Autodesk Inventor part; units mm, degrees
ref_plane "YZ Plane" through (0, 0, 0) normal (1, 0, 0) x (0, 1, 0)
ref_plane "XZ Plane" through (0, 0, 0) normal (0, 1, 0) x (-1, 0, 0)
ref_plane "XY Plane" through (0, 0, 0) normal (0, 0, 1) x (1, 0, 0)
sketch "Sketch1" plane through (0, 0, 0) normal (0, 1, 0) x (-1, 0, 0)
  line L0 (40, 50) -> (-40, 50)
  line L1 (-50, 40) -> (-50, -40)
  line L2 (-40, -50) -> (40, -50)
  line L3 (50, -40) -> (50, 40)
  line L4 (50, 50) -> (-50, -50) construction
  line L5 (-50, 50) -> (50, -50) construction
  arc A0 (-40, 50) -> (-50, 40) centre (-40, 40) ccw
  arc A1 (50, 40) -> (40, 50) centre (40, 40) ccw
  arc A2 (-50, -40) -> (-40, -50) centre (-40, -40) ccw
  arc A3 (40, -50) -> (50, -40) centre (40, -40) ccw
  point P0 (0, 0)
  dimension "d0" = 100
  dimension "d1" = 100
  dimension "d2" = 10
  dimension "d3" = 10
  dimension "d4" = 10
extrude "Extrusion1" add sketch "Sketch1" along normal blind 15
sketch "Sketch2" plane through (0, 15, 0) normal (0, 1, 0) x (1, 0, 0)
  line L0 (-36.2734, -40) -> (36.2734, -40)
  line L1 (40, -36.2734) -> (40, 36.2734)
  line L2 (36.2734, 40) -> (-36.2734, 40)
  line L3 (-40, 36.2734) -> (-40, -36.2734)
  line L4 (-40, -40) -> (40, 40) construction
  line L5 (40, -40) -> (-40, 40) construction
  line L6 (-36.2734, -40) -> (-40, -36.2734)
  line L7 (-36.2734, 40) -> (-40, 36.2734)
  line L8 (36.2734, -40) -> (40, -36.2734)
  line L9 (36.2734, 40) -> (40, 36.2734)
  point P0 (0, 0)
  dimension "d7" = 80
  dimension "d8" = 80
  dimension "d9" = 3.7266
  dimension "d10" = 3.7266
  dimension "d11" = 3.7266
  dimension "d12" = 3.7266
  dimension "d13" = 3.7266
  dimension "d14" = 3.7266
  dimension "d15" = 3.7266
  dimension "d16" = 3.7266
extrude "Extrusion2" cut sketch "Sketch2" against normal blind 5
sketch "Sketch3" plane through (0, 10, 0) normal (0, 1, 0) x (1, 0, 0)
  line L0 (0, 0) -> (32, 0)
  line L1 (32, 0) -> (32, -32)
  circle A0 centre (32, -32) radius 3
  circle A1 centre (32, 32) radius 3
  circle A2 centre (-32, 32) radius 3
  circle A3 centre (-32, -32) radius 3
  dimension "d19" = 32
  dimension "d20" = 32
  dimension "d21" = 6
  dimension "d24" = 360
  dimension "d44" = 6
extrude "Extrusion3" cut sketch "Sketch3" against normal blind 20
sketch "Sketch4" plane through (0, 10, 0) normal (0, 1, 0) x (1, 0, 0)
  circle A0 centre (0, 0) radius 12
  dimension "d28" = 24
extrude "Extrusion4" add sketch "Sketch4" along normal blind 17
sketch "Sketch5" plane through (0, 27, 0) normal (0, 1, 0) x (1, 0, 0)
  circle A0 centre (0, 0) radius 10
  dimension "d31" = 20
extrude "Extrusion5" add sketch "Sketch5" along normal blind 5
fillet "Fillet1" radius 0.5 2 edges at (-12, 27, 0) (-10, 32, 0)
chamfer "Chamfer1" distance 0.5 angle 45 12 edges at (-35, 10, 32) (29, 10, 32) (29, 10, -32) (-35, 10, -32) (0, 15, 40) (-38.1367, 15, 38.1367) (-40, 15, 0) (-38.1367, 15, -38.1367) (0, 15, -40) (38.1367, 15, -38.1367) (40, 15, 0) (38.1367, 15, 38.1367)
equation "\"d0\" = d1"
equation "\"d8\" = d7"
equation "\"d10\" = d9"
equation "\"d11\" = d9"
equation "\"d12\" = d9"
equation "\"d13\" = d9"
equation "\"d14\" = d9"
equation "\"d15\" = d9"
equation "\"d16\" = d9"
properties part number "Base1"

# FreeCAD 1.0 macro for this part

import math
import FreeCAD as App
import Part
import Sketcher

V = App.Vector
Q = App.Units.Quantity


def edges_at(feature, points):
    """Names of the edges that pass closest to the given points."""
    edges = feature.Shape.Edges
    near = lambda p: min(range(len(edges)), key=lambda i: edges[i].distToShape(Part.Vertex(*p))[0])
    return sorted({f"Edge{near(p) + 1}" for p in points})

doc = App.newDocument("Part")
params = doc.addObject("Spreadsheet::Sheet", "Params")
for row, (alias, value) in enumerate([
    ("sketch1_radius", "10 mm"),
    ("sketch1_width", "80 mm"),
    ("pad1_length", "15 mm"),
    ("pocket1_length", "5 mm"),
    ("sketch3_diameter", "6 mm"),
    ("pocket2_length", "20 mm"),
    ("sketch4_diameter", "24 mm"),
    ("pad2_length", "17 mm"),
    ("sketch5_diameter", "20 mm"),
    ("pad3_length", "5 mm"),
    ("fillet_radius", "0.5 mm"),
    ("chamfer_size", "0.5 mm"),
], start=1):
    params.set(f"A{row}", alias)
    params.set(f"B{row}", "=" + value)
    params.setAlias(f"B{row}", alias)

body = doc.addObject("PartDesign::Body", "Body")

sketch1 = body.newObject("Sketcher::SketchObject", "Sketch")
sketch1.AttachmentSupport = (doc.getObject("XZ_Plane"), [""])
sketch1.MapMode = "FlatFace"
sketch1.addGeometry([
    Part.ArcOfCircle(Part.Circle(V(-40, 40, 0), V(0, 0, 1), 10), math.radians(90), math.radians(180)),
    Part.LineSegment(V(-40, 50, 0), V(40, 50, 0)),
    Part.ArcOfCircle(Part.Circle(V(40, 40, 0), V(0, 0, 1), 10), math.radians(0), math.radians(90)),
    Part.LineSegment(V(50, 40, 0), V(50, -40, 0)),
    Part.ArcOfCircle(Part.Circle(V(40, -40, 0), V(0, 0, 1), 10), math.radians(-90), math.radians(0)),
    Part.LineSegment(V(40, -50, 0), V(-40, -50, 0)),
    Part.ArcOfCircle(Part.Circle(V(-40, -40, 0), V(0, 0, 1), 10), math.radians(180), math.radians(270)),
    Part.LineSegment(V(-50, -40, 0), V(-50, 40, 0)),
], False)
sketch1.addConstraint([
    Sketcher.Constraint("Tangent", 0, 1, 1, 1),
    Sketcher.Constraint("Tangent", 1, 2, 2, 2),
    Sketcher.Constraint("Tangent", 2, 1, 3, 1),
    Sketcher.Constraint("Tangent", 3, 2, 4, 2),
    Sketcher.Constraint("Tangent", 4, 1, 5, 1),
    Sketcher.Constraint("Tangent", 5, 2, 6, 2),
    Sketcher.Constraint("Tangent", 6, 1, 7, 1),
    Sketcher.Constraint("Tangent", 7, 2, 0, 2),
    Sketcher.Constraint("Horizontal", 1),
    Sketcher.Constraint("Vertical", 3),
    Sketcher.Constraint("Horizontal", 5),
    Sketcher.Constraint("Vertical", 7),
    Sketcher.Constraint("Equal", 0, 2),
    Sketcher.Constraint("Equal", 2, 4),
    Sketcher.Constraint("Equal", 4, 6),
    Sketcher.Constraint("Symmetric", 0, 3, 4, 3, -1, 1),
    Sketcher.Constraint("Equal", 5, 3),
    Sketcher.Constraint("Radius", 0, Q("10 mm")),
    Sketcher.Constraint("DistanceX", 1, 1, 1, 2, Q("80 mm")),
])
sketch1.setExpression("Constraints[17]", "Params.sketch1_radius")
sketch1.setExpression("Constraints[18]", "Params.sketch1_width")
pad1 = body.newObject("PartDesign::Pad", "Pad")
pad1.Profile = sketch1
pad1.setExpression("Length", "Params.pad1_length")
pad1.Reversed = True

sketch2 = body.newObject("Sketcher::SketchObject", "Sketch001")
sketch2.AttachmentSupport = (doc.getObject("XZ_Plane"), [""])
sketch2.MapMode = "FlatFace"
sketch2.AttachmentOffset = App.Placement(V(0, 0, -15), App.Rotation())
sketch2.addGeometry([
    Part.LineSegment(V(-40, 36, 0), V(-36, 40, 0)),
    Part.LineSegment(V(-36, 40, 0), V(36, 40, 0)),
    Part.LineSegment(V(36, 40, 0), V(40, 36, 0)),
    Part.LineSegment(V(40, 36, 0), V(40, -36, 0)),
    Part.LineSegment(V(40, -36, 0), V(36, -40, 0)),
    Part.LineSegment(V(36, -40, 0), V(-36, -40, 0)),
    Part.LineSegment(V(-36, -40, 0), V(-40, -36, 0)),
    Part.LineSegment(V(-40, -36, 0), V(-40, 36, 0)),
], False)
sketch2.addConstraint([
    Sketcher.Constraint("Coincident", 0, 2, 1, 1),
    Sketcher.Constraint("Coincident", 1, 2, 2, 1),
    Sketcher.Constraint("Coincident", 2, 2, 3, 1),
    Sketcher.Constraint("Coincident", 3, 2, 4, 1),
    Sketcher.Constraint("Coincident", 4, 2, 5, 1),
    Sketcher.Constraint("Coincident", 5, 2, 6, 1),
    Sketcher.Constraint("Coincident", 6, 2, 7, 1),
    Sketcher.Constraint("Coincident", 7, 2, 0, 1),
    Sketcher.Constraint("Horizontal", 1),
    Sketcher.Constraint("Vertical", 3),
    Sketcher.Constraint("Horizontal", 5),
    Sketcher.Constraint("Vertical", 7),
    Sketcher.Constraint("Symmetric", 0, 2, 4, 2, -1, 1),
    Sketcher.Constraint("Symmetric", 2, 2, 6, 2, -1, 1),
    Sketcher.Constraint("Perpendicular", 0, 2),
    Sketcher.Constraint("Perpendicular", 2, 4),
    Sketcher.Constraint("Perpendicular", 4, 6),
    Sketcher.Constraint("Horizontal", 3, 2, 6, 2),
    Sketcher.Constraint("Vertical", 1, 2, 4, 2),
    Sketcher.Constraint("Equal", 5, 3),
    Sketcher.Constraint("DistanceY", 4, 2, 1, 2, Q("80 mm")),
    Sketcher.Constraint("DistanceX", 1, 2, 2, 2, Q("3.7266 mm")),
])
pocket1 = body.newObject("PartDesign::Pocket", "Pocket")
pocket1.Profile = sketch2
pocket1.setExpression("Length", "Params.pocket1_length")
pocket1.Reversed = True

sketch3 = body.newObject("Sketcher::SketchObject", "Sketch002")
sketch3.AttachmentSupport = (doc.getObject("XZ_Plane"), [""])
sketch3.MapMode = "FlatFace"
sketch3.AttachmentOffset = App.Placement(V(0, 0, -10), App.Rotation())
sketch3.addGeometry([
    Part.Circle(V(32, 32, 0), V(0, 0, 1), 3),
    Part.Circle(V(32, -32, 0), V(0, 0, 1), 3),
    Part.Circle(V(-32, -32, 0), V(0, 0, 1), 3),
    Part.Circle(V(-32, 32, 0), V(0, 0, 1), 3),
], False)
sketch3.addConstraint([
    Sketcher.Constraint("Equal", 0, 1),
    Sketcher.Constraint("Equal", 1, 2),
    Sketcher.Constraint("Equal", 2, 3),
    Sketcher.Constraint("Symmetric", 0, 3, 2, 3, -1, 1),
    Sketcher.Constraint("Symmetric", 1, 3, 3, 3, -1, 1),
    Sketcher.Constraint("Symmetric", 1, 3, 2, 3, -2),
    Sketcher.Constraint("Diameter", 0, Q("6 mm")),
    Sketcher.Constraint("DistanceX", -1, 1, 0, 3, Q("32 mm")),
    Sketcher.Constraint("DistanceY", -1, 1, 0, 3, Q("32 mm")),
])
sketch3.setExpression("Constraints[6]", "Params.sketch3_diameter")
pocket2 = body.newObject("PartDesign::Pocket", "Pocket001")
pocket2.Profile = sketch3
pocket2.setExpression("Length", "Params.pocket2_length")
pocket2.Reversed = True

sketch4 = body.newObject("Sketcher::SketchObject", "Sketch003")
sketch4.AttachmentSupport = (doc.getObject("XZ_Plane"), [""])
sketch4.MapMode = "FlatFace"
sketch4.AttachmentOffset = App.Placement(V(0, 0, -10), App.Rotation())
sketch4.addGeometry(Part.Circle(V(0, 0, 0), V(0, 0, 1), 12), False)
sketch4.addConstraint([
    Sketcher.Constraint("Coincident", 0, 3, -1, 1),
    Sketcher.Constraint("Diameter", 0, Q("24 mm")),
])
sketch4.setExpression("Constraints[1]", "Params.sketch4_diameter")
pad2 = body.newObject("PartDesign::Pad", "Pad001")
pad2.Profile = sketch4
pad2.setExpression("Length", "Params.pad2_length")
pad2.Reversed = True

sketch5 = body.newObject("Sketcher::SketchObject", "Sketch004")
sketch5.AttachmentSupport = (doc.getObject("XZ_Plane"), [""])
sketch5.MapMode = "FlatFace"
sketch5.AttachmentOffset = App.Placement(V(0, 0, -27), App.Rotation())
sketch5.addGeometry(Part.Circle(V(0, 0, 0), V(0, 0, 1), 10), False)
sketch5.addConstraint([
    Sketcher.Constraint("Coincident", 0, 3, -1, 1),
    Sketcher.Constraint("Diameter", 0, Q("20 mm")),
])
sketch5.setExpression("Constraints[1]", "Params.sketch5_diameter")
pad3 = body.newObject("PartDesign::Pad", "Pad002")
pad3.Profile = sketch5
pad3.setExpression("Length", "Params.pad3_length")
pad3.Reversed = True
doc.recompute()

fillet = body.newObject("PartDesign::Fillet", "Fillet")
fillet.Base = (pad3, edges_at(pad3, [(-12, 27, 0), (-10, 32, 0)]))
fillet.setExpression("Radius", "Params.fillet_radius")
doc.recompute()

chamfer = body.newObject("PartDesign::Chamfer", "Chamfer")
chamfer.Base = (fillet, edges_at(fillet, [
    (-35, 10, 32),
    (29, 10, 32),
    (29, 10, -32),
    (-35, 10, -32),
    (0, 15, 40),
    (-38.137, 15, 38.137),
    (-40, 15, 0),
    (-38.137, 15, -38.137),
    (0, 15, -40),
    (38.137, 15, -38.137),
    (40, 15, 0),
    (38.137, 15, 38.137),
]))
chamfer.setExpression("Size", "Params.chamfer_size")

doc.recompute()
